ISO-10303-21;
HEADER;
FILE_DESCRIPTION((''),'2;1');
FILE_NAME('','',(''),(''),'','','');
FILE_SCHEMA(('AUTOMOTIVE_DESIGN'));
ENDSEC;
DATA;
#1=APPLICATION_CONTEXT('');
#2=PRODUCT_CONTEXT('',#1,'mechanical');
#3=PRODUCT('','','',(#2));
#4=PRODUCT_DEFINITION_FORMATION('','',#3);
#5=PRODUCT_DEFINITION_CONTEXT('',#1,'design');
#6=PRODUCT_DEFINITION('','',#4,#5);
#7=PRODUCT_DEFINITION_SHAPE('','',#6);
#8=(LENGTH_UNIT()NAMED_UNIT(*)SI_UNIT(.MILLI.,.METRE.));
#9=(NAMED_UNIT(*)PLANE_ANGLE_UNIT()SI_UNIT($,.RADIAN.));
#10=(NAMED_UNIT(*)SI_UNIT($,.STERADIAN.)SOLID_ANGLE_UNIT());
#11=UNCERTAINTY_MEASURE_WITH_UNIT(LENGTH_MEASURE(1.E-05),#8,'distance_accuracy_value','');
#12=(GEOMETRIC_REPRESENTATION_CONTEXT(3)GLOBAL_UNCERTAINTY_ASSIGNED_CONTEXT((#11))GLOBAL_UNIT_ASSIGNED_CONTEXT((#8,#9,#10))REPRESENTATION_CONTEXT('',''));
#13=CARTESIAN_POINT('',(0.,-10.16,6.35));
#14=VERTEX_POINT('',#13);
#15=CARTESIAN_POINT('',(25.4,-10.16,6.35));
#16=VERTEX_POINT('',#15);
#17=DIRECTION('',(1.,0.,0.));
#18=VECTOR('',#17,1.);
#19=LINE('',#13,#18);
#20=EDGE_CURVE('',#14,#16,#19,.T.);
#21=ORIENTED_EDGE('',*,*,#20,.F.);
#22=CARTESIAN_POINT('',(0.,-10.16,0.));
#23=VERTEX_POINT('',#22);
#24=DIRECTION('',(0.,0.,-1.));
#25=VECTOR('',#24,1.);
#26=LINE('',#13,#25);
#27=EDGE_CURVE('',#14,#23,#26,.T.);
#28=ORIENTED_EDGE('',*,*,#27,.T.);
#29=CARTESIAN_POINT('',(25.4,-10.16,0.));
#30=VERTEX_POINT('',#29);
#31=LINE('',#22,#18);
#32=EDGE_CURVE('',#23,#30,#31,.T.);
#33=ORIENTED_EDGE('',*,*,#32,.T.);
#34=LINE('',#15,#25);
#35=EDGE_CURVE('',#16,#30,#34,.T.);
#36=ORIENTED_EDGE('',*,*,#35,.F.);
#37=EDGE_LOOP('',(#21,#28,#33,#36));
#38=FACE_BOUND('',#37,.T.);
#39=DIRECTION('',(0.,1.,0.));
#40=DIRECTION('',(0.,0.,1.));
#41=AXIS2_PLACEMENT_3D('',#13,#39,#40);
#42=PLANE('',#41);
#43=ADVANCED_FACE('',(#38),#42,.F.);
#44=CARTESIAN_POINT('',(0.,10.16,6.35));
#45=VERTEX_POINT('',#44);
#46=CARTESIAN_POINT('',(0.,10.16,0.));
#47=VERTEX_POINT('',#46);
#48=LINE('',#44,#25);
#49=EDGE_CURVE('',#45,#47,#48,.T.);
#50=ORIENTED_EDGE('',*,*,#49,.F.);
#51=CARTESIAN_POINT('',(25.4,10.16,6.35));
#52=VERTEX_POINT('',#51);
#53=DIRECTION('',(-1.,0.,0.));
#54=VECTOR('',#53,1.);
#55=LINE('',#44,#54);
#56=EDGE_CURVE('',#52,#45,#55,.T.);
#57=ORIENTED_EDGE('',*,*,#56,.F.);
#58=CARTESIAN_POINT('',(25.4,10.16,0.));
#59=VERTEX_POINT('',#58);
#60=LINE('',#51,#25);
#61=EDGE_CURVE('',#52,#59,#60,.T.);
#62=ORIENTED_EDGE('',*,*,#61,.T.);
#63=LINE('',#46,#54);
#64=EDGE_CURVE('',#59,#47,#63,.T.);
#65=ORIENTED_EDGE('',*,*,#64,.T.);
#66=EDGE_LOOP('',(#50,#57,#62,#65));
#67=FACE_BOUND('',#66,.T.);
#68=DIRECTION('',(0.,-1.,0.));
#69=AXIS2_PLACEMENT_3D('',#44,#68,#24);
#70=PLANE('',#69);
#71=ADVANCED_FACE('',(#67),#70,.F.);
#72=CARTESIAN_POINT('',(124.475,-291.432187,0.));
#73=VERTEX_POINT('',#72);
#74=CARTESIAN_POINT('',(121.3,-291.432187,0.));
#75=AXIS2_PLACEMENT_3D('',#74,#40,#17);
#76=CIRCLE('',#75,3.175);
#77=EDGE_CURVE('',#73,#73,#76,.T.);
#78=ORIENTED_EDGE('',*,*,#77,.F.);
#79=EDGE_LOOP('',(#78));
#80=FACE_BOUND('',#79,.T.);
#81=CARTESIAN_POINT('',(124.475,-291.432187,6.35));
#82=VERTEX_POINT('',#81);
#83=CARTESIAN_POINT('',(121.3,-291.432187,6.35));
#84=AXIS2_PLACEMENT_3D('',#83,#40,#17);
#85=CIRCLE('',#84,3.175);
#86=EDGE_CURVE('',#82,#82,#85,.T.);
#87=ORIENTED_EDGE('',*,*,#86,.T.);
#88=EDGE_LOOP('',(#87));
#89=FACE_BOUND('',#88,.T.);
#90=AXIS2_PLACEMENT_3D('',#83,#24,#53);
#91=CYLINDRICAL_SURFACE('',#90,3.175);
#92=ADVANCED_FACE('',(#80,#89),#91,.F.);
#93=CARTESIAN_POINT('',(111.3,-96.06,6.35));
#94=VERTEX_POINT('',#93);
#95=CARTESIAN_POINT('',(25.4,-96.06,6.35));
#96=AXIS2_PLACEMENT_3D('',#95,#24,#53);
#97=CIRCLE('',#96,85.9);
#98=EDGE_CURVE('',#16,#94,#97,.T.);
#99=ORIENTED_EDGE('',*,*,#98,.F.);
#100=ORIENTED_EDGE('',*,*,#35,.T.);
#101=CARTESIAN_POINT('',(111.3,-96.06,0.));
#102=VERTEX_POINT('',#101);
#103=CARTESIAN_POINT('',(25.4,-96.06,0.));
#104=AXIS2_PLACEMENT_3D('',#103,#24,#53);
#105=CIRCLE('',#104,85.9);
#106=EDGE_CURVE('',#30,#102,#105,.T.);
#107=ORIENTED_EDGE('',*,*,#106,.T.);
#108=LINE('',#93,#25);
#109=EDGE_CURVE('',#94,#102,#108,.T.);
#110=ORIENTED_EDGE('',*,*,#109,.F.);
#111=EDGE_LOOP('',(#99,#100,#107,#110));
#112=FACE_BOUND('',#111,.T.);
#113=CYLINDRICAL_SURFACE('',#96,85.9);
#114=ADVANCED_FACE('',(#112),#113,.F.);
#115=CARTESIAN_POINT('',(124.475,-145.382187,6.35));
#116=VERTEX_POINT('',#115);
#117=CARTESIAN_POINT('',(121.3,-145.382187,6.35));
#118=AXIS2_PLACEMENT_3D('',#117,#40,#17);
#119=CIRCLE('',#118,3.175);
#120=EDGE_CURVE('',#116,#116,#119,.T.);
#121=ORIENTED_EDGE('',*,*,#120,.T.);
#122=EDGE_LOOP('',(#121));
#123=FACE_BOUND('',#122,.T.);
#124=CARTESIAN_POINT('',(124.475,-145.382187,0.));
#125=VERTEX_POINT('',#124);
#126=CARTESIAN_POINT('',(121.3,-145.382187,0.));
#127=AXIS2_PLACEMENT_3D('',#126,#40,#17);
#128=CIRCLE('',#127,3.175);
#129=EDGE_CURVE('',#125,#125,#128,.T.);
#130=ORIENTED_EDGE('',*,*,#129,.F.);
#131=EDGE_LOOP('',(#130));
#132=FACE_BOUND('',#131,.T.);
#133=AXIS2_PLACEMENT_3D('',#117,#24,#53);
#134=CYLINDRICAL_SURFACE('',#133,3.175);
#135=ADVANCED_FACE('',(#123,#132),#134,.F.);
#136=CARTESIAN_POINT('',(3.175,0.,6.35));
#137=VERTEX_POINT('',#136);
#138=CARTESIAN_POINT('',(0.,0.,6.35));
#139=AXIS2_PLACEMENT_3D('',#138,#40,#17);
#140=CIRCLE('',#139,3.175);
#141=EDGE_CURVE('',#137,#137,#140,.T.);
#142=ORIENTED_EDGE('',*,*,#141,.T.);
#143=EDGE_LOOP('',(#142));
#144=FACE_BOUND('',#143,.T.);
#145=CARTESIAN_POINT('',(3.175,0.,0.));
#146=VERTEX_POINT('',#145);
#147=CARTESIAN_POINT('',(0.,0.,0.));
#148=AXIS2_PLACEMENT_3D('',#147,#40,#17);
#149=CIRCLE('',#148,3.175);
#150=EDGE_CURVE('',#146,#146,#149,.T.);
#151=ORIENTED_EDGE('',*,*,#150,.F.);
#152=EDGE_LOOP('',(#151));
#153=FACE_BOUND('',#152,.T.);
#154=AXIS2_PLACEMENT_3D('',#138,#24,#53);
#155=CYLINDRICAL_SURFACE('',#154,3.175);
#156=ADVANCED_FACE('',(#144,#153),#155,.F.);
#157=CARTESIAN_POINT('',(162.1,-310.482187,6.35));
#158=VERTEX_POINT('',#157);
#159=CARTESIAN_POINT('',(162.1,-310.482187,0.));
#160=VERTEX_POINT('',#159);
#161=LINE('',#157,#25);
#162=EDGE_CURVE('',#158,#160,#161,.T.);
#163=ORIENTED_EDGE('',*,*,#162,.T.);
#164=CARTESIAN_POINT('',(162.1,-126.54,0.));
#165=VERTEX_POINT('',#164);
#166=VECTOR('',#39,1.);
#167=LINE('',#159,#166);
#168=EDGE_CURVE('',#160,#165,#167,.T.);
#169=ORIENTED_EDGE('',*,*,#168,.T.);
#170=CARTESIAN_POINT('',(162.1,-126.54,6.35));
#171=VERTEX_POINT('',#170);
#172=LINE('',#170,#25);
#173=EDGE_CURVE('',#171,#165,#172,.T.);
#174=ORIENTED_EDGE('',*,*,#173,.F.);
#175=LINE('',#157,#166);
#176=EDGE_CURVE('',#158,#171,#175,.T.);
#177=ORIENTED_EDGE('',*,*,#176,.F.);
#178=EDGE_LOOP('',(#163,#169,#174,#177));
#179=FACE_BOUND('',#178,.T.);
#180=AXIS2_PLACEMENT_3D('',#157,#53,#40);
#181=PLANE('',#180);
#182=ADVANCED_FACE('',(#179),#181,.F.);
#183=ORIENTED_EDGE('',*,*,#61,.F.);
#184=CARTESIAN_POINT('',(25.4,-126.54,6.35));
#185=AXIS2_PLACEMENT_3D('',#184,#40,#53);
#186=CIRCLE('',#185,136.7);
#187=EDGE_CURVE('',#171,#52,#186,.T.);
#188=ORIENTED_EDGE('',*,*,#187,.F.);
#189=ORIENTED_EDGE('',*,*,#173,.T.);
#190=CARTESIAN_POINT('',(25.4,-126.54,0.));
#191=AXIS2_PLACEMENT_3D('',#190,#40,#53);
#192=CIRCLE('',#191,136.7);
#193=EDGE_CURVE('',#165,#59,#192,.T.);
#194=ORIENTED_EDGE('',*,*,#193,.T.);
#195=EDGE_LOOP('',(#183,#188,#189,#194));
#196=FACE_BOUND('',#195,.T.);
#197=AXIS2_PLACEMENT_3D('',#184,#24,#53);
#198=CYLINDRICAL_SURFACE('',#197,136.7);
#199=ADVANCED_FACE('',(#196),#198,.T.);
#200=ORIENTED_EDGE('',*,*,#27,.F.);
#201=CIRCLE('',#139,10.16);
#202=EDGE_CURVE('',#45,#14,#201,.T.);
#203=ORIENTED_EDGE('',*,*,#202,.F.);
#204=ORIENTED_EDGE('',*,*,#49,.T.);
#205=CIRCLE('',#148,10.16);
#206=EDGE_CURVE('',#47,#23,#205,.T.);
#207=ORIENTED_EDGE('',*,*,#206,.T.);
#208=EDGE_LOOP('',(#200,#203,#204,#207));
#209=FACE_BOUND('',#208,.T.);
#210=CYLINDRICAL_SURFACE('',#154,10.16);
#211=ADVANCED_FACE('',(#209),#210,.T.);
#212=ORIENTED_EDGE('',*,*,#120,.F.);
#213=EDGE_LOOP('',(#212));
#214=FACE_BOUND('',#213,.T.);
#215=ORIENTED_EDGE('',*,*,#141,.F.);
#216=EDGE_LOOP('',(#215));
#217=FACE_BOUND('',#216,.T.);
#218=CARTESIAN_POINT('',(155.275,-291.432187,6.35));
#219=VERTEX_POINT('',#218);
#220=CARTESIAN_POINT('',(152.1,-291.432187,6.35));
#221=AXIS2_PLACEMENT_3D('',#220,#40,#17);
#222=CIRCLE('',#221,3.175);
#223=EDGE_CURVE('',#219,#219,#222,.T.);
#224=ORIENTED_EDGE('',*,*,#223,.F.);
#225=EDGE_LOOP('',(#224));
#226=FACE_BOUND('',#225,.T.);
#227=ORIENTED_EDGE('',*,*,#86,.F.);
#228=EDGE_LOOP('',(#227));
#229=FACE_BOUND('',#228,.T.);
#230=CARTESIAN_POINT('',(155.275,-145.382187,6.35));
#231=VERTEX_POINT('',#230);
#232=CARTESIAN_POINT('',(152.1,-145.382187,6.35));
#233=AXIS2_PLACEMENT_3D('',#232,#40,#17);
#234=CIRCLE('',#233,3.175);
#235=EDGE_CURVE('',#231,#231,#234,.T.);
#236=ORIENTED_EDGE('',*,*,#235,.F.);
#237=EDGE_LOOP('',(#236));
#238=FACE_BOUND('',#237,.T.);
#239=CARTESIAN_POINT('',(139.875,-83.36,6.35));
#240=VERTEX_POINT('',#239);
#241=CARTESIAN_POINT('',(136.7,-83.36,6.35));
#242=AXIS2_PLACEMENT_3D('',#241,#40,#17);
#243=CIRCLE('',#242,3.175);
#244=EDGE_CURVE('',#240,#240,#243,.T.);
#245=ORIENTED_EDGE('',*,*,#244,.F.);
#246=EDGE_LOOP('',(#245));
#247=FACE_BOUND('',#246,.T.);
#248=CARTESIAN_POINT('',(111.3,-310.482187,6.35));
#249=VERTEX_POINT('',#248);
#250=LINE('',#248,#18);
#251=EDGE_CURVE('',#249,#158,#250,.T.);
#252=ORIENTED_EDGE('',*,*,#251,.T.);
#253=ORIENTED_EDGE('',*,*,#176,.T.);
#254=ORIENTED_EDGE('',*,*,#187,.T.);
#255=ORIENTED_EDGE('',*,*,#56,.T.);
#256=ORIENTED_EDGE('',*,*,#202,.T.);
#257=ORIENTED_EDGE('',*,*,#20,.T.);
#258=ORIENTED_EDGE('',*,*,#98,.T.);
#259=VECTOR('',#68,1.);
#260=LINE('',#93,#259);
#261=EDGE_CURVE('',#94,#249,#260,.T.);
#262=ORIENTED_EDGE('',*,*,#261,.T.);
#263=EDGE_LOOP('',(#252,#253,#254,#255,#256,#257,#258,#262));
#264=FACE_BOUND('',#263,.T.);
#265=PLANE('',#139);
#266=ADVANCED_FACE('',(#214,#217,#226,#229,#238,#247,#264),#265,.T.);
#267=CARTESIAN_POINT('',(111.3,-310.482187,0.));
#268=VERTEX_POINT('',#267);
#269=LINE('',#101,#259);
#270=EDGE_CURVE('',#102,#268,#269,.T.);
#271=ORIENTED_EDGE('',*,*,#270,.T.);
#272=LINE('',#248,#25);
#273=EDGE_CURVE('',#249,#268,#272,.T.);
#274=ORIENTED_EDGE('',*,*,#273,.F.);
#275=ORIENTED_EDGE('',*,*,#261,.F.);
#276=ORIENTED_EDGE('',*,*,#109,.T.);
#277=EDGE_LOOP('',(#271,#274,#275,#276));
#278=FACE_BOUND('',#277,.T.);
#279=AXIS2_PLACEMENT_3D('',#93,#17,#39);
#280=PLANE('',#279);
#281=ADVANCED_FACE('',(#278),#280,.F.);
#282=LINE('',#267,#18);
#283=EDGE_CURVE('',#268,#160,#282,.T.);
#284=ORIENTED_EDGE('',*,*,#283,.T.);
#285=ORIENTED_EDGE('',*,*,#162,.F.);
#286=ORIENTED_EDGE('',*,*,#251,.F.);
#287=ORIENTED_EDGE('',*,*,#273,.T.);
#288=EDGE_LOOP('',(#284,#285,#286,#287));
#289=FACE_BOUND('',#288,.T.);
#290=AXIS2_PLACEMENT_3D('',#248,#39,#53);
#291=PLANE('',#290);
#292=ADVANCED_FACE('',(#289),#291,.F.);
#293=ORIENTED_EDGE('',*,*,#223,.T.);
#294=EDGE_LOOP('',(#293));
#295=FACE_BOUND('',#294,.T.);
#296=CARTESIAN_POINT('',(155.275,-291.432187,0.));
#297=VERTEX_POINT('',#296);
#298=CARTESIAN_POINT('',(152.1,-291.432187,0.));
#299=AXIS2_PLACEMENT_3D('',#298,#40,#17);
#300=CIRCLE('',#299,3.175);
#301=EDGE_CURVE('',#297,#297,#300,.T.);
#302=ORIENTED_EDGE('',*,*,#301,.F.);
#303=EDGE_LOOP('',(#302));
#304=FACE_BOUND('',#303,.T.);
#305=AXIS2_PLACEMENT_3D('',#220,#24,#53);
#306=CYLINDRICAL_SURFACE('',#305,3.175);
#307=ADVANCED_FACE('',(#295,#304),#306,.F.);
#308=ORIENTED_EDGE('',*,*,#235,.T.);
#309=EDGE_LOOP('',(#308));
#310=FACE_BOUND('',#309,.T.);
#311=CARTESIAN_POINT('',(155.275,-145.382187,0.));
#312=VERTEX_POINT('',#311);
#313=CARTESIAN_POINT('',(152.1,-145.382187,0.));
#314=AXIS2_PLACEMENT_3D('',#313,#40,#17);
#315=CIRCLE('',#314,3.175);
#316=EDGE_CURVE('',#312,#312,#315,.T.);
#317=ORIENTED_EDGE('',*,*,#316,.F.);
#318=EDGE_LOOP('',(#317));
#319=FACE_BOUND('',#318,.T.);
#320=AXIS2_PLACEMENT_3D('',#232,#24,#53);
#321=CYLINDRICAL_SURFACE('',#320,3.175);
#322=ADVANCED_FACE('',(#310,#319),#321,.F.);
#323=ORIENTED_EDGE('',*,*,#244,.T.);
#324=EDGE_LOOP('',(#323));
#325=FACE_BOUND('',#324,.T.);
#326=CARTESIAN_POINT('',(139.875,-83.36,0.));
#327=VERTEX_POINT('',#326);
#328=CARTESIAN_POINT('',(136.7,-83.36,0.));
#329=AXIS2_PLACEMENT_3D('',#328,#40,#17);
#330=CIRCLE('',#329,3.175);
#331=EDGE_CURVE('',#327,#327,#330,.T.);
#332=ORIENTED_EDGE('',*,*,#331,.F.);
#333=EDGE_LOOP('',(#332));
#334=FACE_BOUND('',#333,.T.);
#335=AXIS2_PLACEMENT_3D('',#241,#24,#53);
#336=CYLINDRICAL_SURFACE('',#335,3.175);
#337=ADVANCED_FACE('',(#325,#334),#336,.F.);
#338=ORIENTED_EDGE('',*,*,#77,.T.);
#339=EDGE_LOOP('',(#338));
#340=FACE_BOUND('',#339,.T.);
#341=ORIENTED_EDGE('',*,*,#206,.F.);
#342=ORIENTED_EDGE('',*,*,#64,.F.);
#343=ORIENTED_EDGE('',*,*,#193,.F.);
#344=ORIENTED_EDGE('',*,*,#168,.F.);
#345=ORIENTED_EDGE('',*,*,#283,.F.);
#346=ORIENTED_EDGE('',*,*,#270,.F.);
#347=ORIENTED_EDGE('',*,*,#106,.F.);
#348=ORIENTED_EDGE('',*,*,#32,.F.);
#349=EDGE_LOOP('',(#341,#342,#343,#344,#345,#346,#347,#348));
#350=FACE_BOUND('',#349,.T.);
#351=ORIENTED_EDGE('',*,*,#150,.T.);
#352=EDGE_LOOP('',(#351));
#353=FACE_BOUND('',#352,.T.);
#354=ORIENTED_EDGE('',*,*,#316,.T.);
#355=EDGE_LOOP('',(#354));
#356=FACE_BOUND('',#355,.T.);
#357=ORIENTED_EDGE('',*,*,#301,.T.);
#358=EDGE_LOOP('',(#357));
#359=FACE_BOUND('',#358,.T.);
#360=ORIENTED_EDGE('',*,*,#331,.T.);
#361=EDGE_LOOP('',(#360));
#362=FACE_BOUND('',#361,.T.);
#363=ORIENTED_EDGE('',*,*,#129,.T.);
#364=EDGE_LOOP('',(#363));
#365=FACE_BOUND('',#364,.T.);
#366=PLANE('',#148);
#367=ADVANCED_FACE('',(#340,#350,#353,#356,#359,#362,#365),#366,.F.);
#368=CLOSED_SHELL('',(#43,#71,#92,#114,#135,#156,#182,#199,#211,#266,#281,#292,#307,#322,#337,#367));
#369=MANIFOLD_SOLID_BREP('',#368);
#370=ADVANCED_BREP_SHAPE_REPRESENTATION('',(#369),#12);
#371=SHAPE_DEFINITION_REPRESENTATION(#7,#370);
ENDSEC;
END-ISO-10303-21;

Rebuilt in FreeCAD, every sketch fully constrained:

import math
import FreeCAD as App
import Part
import Sketcher
Q = App.Units.Quantity

doc = App.newDocument("Part")
body = doc.addObject("PartDesign::Body", "Body")

sketch1 = body.newObject("Sketcher::SketchObject", "Sketch")
sketch1.AttachmentSupport = (doc.getObject("XY_Plane"), [""])
sketch1.MapMode = "FlatFace"
sketch1.addGeometry([
    Part.LineSegment(App.Vector(25.4, 10.2, 0), App.Vector(0, 10.2, 0)),
    Part.ArcOfCircle(Part.Circle(App.Vector(0, 0, 0), App.Vector(0, 0, 1), 10.2), math.radians(90), math.radians(270)),
    Part.LineSegment(App.Vector(0, -10.2, 0), App.Vector(25.4, -10.2, 0)),
    Part.ArcOfCircle(Part.Circle(App.Vector(25.4, -96.1, 0), App.Vector(0, 0, 1), 85.9), math.radians(0), math.radians(90)),
    Part.LineSegment(App.Vector(111.3, -96.1, 0), App.Vector(111.3, -310.5, 0)),
    Part.LineSegment(App.Vector(111.3, -310.5, 0), App.Vector(162.1, -310.5, 0)),
    Part.LineSegment(App.Vector(162.1, -310.5, 0), App.Vector(162.1, -126.5, 0)),
    Part.ArcOfCircle(Part.Circle(App.Vector(25.4, -126.5, 0), App.Vector(0, 0, 1), 136.7), math.radians(0), math.radians(90)),
    Part.Circle(App.Vector(152.1, -291.4, 0), App.Vector(0, 0, 1), 3.2),
    Part.Circle(App.Vector(121.3, -291.4, 0), App.Vector(0, 0, 1), 3.2),
    Part.Circle(App.Vector(152.1, -145.4, 0), App.Vector(0, 0, 1), 3.2),
    Part.Circle(App.Vector(121.3, -145.4, 0), App.Vector(0, 0, 1), 3.2),
    Part.Circle(App.Vector(136.7, -83.4, 0), App.Vector(0, 0, 1), 3.2),
    Part.Circle(App.Vector(0, 0, 0), App.Vector(0, 0, 1), 3.2),
], False)
sketch1.addConstraint([
    Sketcher.Constraint("Tangent", 0, 2, 1, 1),
    Sketcher.Constraint("Tangent", 1, 2, 2, 1),
    Sketcher.Constraint("Tangent", 2, 2, 3, 2),
    Sketcher.Constraint("Tangent", 3, 1, 4, 1),
    Sketcher.Constraint("Coincident", 4, 2, 5, 1),
    Sketcher.Constraint("Coincident", 5, 2, 6, 1),
    Sketcher.Constraint("Tangent", 6, 2, 7, 1),
    Sketcher.Constraint("Tangent", 7, 2, 0, 1),
    Sketcher.Constraint("Horizontal", 0),
    Sketcher.Constraint("Horizontal", 2),
    Sketcher.Constraint("Vertical", 4),
    Sketcher.Constraint("Horizontal", 5),
    Sketcher.Constraint("Vertical", 6),
    Sketcher.Constraint("Coincident", 1, 3, -1, 1),
    Sketcher.Constraint("Coincident", 13, 3, -1, 1),
    Sketcher.Constraint("Equal", 8, 9),
    Sketcher.Constraint("Equal", 9, 10),
    Sketcher.Constraint("Equal", 10, 11),
    Sketcher.Constraint("Equal", 11, 12),
    Sketcher.Constraint("Equal", 12, 13),
    Sketcher.Constraint("Horizontal", 8, 3, 9, 3),
    Sketcher.Constraint("Horizontal", 10, 3, 11, 3),
    Sketcher.Constraint("Vertical", 3, 3, 7, 3),
    Sketcher.Constraint("Vertical", 8, 3, 10, 3),
    Sketcher.Constraint("Vertical", 9, 3, 11, 3),
    Sketcher.Constraint("Radius", 1, Q("0.4 in")),
    Sketcher.Constraint("Diameter", 8, Q("0.25 in")),
    Sketcher.Constraint("DistanceX", 0, 2, 0, 1, Q("1 in")),
    Sketcher.Constraint("DistanceX", 5, 1, 5, 2, Q("2 in")),
    Sketcher.Constraint("DistanceX", 3, 1, 12, 3, Q("1 in")),
    Sketcher.Constraint("DistanceY", 3, 3, 12, 3, Q("0.5 in")),
    Sketcher.Constraint("DistanceY", 4, 2, 11, 3, Q("6.5 in")),
    Sketcher.Constraint("Radius", 3, 85.9),
    Sketcher.Constraint("DistanceY", 8, 3, 10, 3, Q("5.75 in")),
    Sketcher.Constraint("DistanceX", -1, 1, 8, 3, 152.1),
    Sketcher.Constraint("DistanceX", -1, 1, 9, 3, 121.3),
    Sketcher.Constraint("DistanceY", 4, 2, 4, 1, 214.422187),
])
pad1 = body.newObject("PartDesign::Pad", "Pad")
pad1.Profile = sketch1
pad1.Length = Q("0.25 in")

doc.recompute()
